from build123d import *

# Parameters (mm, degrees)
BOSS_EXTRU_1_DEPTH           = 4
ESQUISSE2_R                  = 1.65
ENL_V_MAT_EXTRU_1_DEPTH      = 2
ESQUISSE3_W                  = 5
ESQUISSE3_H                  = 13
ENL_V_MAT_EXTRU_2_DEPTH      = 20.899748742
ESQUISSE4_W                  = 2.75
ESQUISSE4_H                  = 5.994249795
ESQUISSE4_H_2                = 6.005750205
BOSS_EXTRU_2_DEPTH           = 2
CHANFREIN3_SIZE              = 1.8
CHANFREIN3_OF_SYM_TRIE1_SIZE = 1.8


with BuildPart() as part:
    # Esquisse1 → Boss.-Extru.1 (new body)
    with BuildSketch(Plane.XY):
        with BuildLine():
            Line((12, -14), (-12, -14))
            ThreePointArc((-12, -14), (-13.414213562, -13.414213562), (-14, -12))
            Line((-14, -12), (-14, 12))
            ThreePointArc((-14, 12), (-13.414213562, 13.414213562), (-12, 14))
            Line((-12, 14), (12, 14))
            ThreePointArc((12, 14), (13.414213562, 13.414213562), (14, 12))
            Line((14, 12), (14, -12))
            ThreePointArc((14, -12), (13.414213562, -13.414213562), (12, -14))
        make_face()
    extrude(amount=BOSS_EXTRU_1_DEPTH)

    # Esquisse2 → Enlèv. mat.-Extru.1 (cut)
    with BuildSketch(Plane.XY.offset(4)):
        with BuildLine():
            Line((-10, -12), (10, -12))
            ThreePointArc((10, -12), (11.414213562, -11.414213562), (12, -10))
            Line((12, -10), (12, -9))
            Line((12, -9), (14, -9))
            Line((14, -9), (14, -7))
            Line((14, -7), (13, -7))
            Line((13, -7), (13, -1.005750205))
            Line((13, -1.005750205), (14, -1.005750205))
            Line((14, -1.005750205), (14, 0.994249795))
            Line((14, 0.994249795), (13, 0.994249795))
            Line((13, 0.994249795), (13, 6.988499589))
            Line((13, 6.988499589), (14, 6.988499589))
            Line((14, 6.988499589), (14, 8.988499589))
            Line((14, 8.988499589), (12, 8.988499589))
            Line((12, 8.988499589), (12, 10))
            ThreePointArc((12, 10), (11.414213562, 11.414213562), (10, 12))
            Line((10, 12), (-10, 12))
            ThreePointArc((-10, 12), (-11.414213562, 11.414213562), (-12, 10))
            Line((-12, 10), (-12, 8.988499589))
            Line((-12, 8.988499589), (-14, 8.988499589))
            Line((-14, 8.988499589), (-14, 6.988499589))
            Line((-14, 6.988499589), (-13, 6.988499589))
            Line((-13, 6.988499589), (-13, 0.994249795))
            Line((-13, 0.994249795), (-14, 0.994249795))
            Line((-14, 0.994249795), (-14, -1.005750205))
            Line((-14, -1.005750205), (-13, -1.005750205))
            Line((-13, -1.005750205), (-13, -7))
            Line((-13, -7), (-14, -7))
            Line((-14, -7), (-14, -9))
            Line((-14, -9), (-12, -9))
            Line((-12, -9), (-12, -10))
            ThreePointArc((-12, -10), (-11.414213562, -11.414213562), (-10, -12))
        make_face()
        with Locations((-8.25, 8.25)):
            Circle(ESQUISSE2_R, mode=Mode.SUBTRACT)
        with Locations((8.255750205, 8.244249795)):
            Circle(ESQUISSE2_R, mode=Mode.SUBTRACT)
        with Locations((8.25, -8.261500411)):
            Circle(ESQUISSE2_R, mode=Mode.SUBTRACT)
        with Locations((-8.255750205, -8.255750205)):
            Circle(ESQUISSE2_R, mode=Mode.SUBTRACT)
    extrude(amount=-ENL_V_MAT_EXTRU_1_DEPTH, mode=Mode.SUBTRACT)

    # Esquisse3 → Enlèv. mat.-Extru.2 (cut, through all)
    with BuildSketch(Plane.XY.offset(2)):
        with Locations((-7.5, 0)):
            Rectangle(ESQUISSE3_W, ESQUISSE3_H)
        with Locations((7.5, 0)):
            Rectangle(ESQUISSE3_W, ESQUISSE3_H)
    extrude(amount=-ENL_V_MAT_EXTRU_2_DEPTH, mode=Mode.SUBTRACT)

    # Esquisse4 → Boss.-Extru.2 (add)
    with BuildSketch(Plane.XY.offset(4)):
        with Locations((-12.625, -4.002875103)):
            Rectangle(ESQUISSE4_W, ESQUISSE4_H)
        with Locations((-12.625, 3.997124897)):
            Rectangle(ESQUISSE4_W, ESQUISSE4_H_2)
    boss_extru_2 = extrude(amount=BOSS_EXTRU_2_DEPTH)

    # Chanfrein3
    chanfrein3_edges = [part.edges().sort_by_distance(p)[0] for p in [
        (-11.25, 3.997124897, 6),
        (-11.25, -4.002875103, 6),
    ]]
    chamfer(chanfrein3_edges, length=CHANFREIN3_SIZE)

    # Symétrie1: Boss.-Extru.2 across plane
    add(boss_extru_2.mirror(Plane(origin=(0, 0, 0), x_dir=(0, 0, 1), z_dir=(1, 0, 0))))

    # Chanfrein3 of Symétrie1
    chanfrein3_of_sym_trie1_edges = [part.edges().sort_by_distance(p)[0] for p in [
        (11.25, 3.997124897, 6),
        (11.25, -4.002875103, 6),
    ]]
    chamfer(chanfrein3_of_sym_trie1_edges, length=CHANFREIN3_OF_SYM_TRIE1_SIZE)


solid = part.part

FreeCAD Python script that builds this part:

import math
import FreeCAD as App
import Part
import Sketcher
from FreeCAD import Vector


def edges_at(feature, points):
    """Names of the edges that pass closest to the given points."""
    edges = feature.Shape.Edges
    near = lambda p: min(range(len(edges)), key=lambda i: edges[i].distToShape(Part.Vertex(*p))[0])
    return sorted({f"Edge{near(p) + 1}" for p in points})

doc = App.newDocument("Part")
body = doc.addObject("PartDesign::Body", "Body")

# Sketch on XY plane
sketch1 = body.newObject("Sketcher::SketchObject", "Sketch")
sketch1.AttachmentSupport = (doc.getObject("XY_Plane"), [""])
sketch1.MapMode = "FlatFace"
sketch1.addGeometry([
    Part.LineSegment(Vector(-12, -14, 0), Vector(12, -14, 0)),  # 0
    Part.ArcOfCircle(Part.Circle(Vector(12, -12, 0), Vector(0, 0, 1), 2), math.radians(-90), math.radians(0)),  # 1
    Part.LineSegment(Vector(14, -12, 0), Vector(14, 12, 0)),  # 2
    Part.ArcOfCircle(Part.Circle(Vector(12, 12, 0), Vector(0, 0, 1), 2), math.radians(0), math.radians(90)),  # 3
    Part.LineSegment(Vector(12, 14, 0), Vector(-12, 14, 0)),  # 4
    Part.ArcOfCircle(Part.Circle(Vector(-12, 12, 0), Vector(0, 0, 1), 2), math.radians(90), math.radians(180)),  # 5
    Part.LineSegment(Vector(-14, 12, 0), Vector(-14, -12, 0)),  # 6
    Part.ArcOfCircle(Part.Circle(Vector(-12, -12, 0), Vector(0, 0, 1), 2), math.radians(-180), math.radians(-90)),  # 7
], False)
sketch1.addConstraint([
    Sketcher.Constraint("Tangent", 0, 2, 1, 1),
    Sketcher.Constraint("Tangent", 1, 2, 2, 1),
    Sketcher.Constraint("Tangent", 2, 2, 3, 1),
    Sketcher.Constraint("Tangent", 3, 2, 4, 1),
    Sketcher.Constraint("Tangent", 4, 2, 5, 1),
    Sketcher.Constraint("Tangent", 5, 2, 6, 1),
    Sketcher.Constraint("Tangent", 6, 2, 7, 1),
    Sketcher.Constraint("Tangent", 7, 2, 0, 1),
    Sketcher.Constraint("Horizontal", 0),
    Sketcher.Constraint("Vertical", 2),
    Sketcher.Constraint("Horizontal", 4),
    Sketcher.Constraint("Vertical", 6),
    Sketcher.Constraint("Equal", 1, 3),
    Sketcher.Constraint("Equal", 3, 5),
    Sketcher.Constraint("Equal", 5, 7),
    Sketcher.Constraint("Symmetric", 1, 3, 5, 3, -1, 1),
    Sketcher.Constraint("Equal", 4, 2),
    Sketcher.Constraint("Radius", 1, 2.0),
    Sketcher.Constraint("DistanceX", 0, 1, 0, 2, 24.0),
])
pad1 = body.newObject("PartDesign::Pad", "Pad")
pad1.Profile = sketch1
pad1.Length = 4

# Sketch on XY plane
sketch2 = body.newObject("Sketcher::SketchObject", "Sketch001")
sketch2.AttachmentSupport = (doc.getObject("XY_Plane"), [""])
sketch2.MapMode = "FlatFace"
sketch2.AttachmentOffset = App.Placement(Vector(0, 0, 4), App.Rotation())
sketch2.addGeometry([
    Part.LineSegment(Vector(-10, -12, 0), Vector(10, -12, 0)),  # 0
    Part.ArcOfCircle(Part.Circle(Vector(10, -10, 0), Vector(0, 0, 1), 2), math.radians(-90), math.radians(0)),  # 1
    Part.LineSegment(Vector(12, -10, 0), Vector(12, -9, 0)),  # 2
    Part.LineSegment(Vector(12, -9, 0), Vector(14, -9, 0)),  # 3
    Part.LineSegment(Vector(14, -9, 0), Vector(14, -7, 0)),  # 4
    Part.LineSegment(Vector(14, -7, 0), Vector(13, -7, 0)),  # 5
    Part.LineSegment(Vector(13, -7, 0), Vector(13, -1, 0)),  # 6
    Part.LineSegment(Vector(13, -1, 0), Vector(14, -1, 0)),  # 7
    Part.LineSegment(Vector(14, -1, 0), Vector(14, 1, 0)),  # 8
    Part.LineSegment(Vector(14, 1, 0), Vector(13, 1, 0)),  # 9
    Part.LineSegment(Vector(13, 1, 0), Vector(13, 7, 0)),  # 10
    Part.LineSegment(Vector(13, 7, 0), Vector(14, 7, 0)),  # 11
    Part.LineSegment(Vector(14, 7, 0), Vector(14, 9, 0)),  # 12
    Part.LineSegment(Vector(14, 9, 0), Vector(12, 9, 0)),  # 13
    Part.LineSegment(Vector(12, 9, 0), Vector(12, 10, 0)),  # 14
    Part.ArcOfCircle(Part.Circle(Vector(10, 10, 0), Vector(0, 0, 1), 2), math.radians(0), math.radians(90)),  # 15
    Part.LineSegment(Vector(10, 12, 0), Vector(-10, 12, 0)),  # 16
    Part.ArcOfCircle(Part.Circle(Vector(-10, 10, 0), Vector(0, 0, 1), 2), math.radians(90), math.radians(180)),  # 17
    Part.LineSegment(Vector(-12, 10, 0), Vector(-12, 9, 0)),  # 18
    Part.LineSegment(Vector(-12, 9, 0), Vector(-14, 9, 0)),  # 19
    Part.LineSegment(Vector(-14, 9, 0), Vector(-14, 7, 0)),  # 20
    Part.LineSegment(Vector(-14, 7, 0), Vector(-13, 7, 0)),  # 21
    Part.LineSegment(Vector(-13, 7, 0), Vector(-13, 1, 0)),  # 22
    Part.LineSegment(Vector(-13, 1, 0), Vector(-14, 1, 0)),  # 23
    Part.LineSegment(Vector(-14, 1, 0), Vector(-14, -1, 0)),  # 24
    Part.LineSegment(Vector(-14, -1, 0), Vector(-13, -1, 0)),  # 25
    Part.LineSegment(Vector(-13, -1, 0), Vector(-13, -7, 0)),  # 26
    Part.LineSegment(Vector(-13, -7, 0), Vector(-14, -7, 0)),  # 27
    Part.LineSegment(Vector(-14, -7, 0), Vector(-14, -9, 0)),  # 28
    Part.LineSegment(Vector(-14, -9, 0), Vector(-12, -9, 0)),  # 29
    Part.LineSegment(Vector(-12, -9, 0), Vector(-12, -10, 0)),  # 30
    Part.ArcOfCircle(Part.Circle(Vector(-10, -10, 0), Vector(0, 0, 1), 2), math.radians(-180), math.radians(-90)),  # 31
    Part.Circle(Vector(-8.3, -8.3, 0), Vector(0, 0, 1), 1.6),  # 32
    Part.Circle(Vector(8.2, -8.3, 0), Vector(0, 0, 1), 1.6),  # 33
    Part.Circle(Vector(-8.2, 8.2, 0), Vector(0, 0, 1), 1.6),  # 34
    Part.Circle(Vector(8.3, 8.2, 0), Vector(0, 0, 1), 1.6),  # 35
], False)
sketch2.addConstraint([
    Sketcher.Constraint("Tangent", 0, 2, 1, 1),
    Sketcher.Constraint("Tangent", 1, 2, 2, 1),
    Sketcher.Constraint("Coincident", 2, 2, 3, 1),
    Sketcher.Constraint("Coincident", 3, 2, 4, 1),
    Sketcher.Constraint("Coincident", 4, 2, 5, 1),
    Sketcher.Constraint("Coincident", 5, 2, 6, 1),
    Sketcher.Constraint("Coincident", 6, 2, 7, 1),
    Sketcher.Constraint("Coincident", 7, 2, 8, 1),
    Sketcher.Constraint("Coincident", 8, 2, 9, 1),
    Sketcher.Constraint("Coincident", 9, 2, 10, 1),
    Sketcher.Constraint("Coincident", 10, 2, 11, 1),
    Sketcher.Constraint("Coincident", 11, 2, 12, 1),
    Sketcher.Constraint("Coincident", 12, 2, 13, 1),
    Sketcher.Constraint("Coincident", 13, 2, 14, 1),
    Sketcher.Constraint("Tangent", 14, 2, 15, 1),
    Sketcher.Constraint("Tangent", 15, 2, 16, 1),
    Sketcher.Constraint("Tangent", 16, 2, 17, 1),
    Sketcher.Constraint("Tangent", 17, 2, 18, 1),
    Sketcher.Constraint("Coincident", 18, 2, 19, 1),
    Sketcher.Constraint("Coincident", 19, 2, 20, 1),
    Sketcher.Constraint("Coincident", 20, 2, 21, 1),
    Sketcher.Constraint("Coincident", 21, 2, 22, 1),
    Sketcher.Constraint("Coincident", 22, 2, 23, 1),
    Sketcher.Constraint("Coincident", 23, 2, 24, 1),
    Sketcher.Constraint("Coincident", 24, 2, 25, 1),
    Sketcher.Constraint("Coincident", 25, 2, 26, 1),
    Sketcher.Constraint("Coincident", 26, 2, 27, 1),
    Sketcher.Constraint("Coincident", 27, 2, 28, 1),
    Sketcher.Constraint("Coincident", 28, 2, 29, 1),
    Sketcher.Constraint("Coincident", 29, 2, 30, 1),
    Sketcher.Constraint("Tangent", 30, 2, 31, 1),
    Sketcher.Constraint("Tangent", 31, 2, 0, 1),
    Sketcher.Constraint("Horizontal", 0),
    Sketcher.Constraint("Vertical", 2),
    Sketcher.Constraint("Horizontal", 3),
    Sketcher.Constraint("Vertical", 4),
    Sketcher.Constraint("Horizontal", 5),
    Sketcher.Constraint("Vertical", 6),
    Sketcher.Constraint("Horizontal", 7),
    Sketcher.Constraint("Vertical", 8),
    Sketcher.Constraint("Horizontal", 9),
    Sketcher.Constraint("Vertical", 10),
    Sketcher.Constraint("Horizontal", 11),
    Sketcher.Constraint("Vertical", 12),
    Sketcher.Constraint("Horizontal", 13),
    Sketcher.Constraint("Vertical", 14),
    Sketcher.Constraint("Horizontal", 16),
    Sketcher.Constraint("Vertical", 18),
    Sketcher.Constraint("Horizontal", 19),
    Sketcher.Constraint("Vertical", 20),
    Sketcher.Constraint("Horizontal", 21),
    Sketcher.Constraint("Vertical", 22),
    Sketcher.Constraint("Horizontal", 23),
    Sketcher.Constraint("Vertical", 24),
    Sketcher.Constraint("Horizontal", 25),
    Sketcher.Constraint("Vertical", 26),
    Sketcher.Constraint("Horizontal", 27),
    Sketcher.Constraint("Vertical", 28),
    Sketcher.Constraint("Horizontal", 29),
    Sketcher.Constraint("Vertical", 30),
    Sketcher.Constraint("Equal", 1, 15),
    Sketcher.Constraint("Equal", 15, 17),
    Sketcher.Constraint("Equal", 17, 31),
    Sketcher.Constraint("Equal", 32, 33),
    Sketcher.Constraint("Equal", 33, 34),
    Sketcher.Constraint("Equal", 34, 35),
    Sketcher.Constraint("Symmetric", 1, 3, 17, 3, -1, 1),
    Sketcher.Constraint("Symmetric", 13, 2, 18, 2, -2),
    Sketcher.Constraint("Symmetric", 11, 2, 20, 2, -2),
    Sketcher.Constraint("Symmetric", 9, 2, 22, 2, -2),
    Sketcher.Constraint("Symmetric", 7, 2, 24, 2, -2),
    Sketcher.Constraint("Symmetric", 5, 2, 26, 2, -2),
    Sketcher.Constraint("Symmetric", 3, 2, 28, 2, -2),
    Sketcher.Constraint("Vertical", 17, 3, 31, 3),
    Sketcher.Constraint("Vertical", 4, 2, 7, 2),
    Sketcher.Constraint("Vertical", 6, 2, 9, 2),
    Sketcher.Constraint("Vertical", 8, 2, 11, 2),
    Sketcher.Constraint("Equal", 27, 2),
    Sketcher.Constraint("Equal", 29, 4),
    Sketcher.Constraint("Equal", 4, 8),
    Sketcher.Constraint("Equal", 6, 10),
    Sketcher.Constraint("Equal", 8, 12),
    Sketcher.Constraint("Radius", 1, 2.0),
    Sketcher.Constraint("Diameter", 32, 3.3),
    Sketcher.Constraint("DistanceX", 0, 1, 0, 2, 20.0),
    Sketcher.Constraint("DistanceX", 3, 1, 3, 2, 2.0),
    Sketcher.Constraint("DistanceX", 5, 2, 5, 1, 1.0),
    Sketcher.Constraint("DistanceY", 1, 3, -1, 1, 10.0),
    Sketcher.Constraint("DistanceX", 34, 3, 33, 3, 16.5),
    Sketcher.Constraint("DistanceX", -1, 1, 33, 3, 8.25),
    Sketcher.Constraint("DistanceY", -1, 1, 34, 3, 8.25),
    Sketcher.Constraint("DistanceY", 8, 2, 35, 3, 7.25),
    Sketcher.Constraint("DistanceY", 32, 3, 24, 2, 7.25),
    Sketcher.Constraint("DistanceY", 14, 1, 14, 2, 1.0115),
    Sketcher.Constraint("DistanceY", 33, 3, -1, 1, 8.2615),
    Sketcher.Constraint("DistanceX", 32, 3, -1, 1, 8.25575),
    Sketcher.Constraint("DistanceX", -1, 1, 35, 3, 8.25575),
])
pocket1 = body.newObject("PartDesign::Pocket", "Pocket")
pocket1.Profile = sketch2
pocket1.Length = 2

# Sketch on XY plane
sketch3 = body.newObject("Sketcher::SketchObject", "Sketch002")
sketch3.AttachmentSupport = (doc.getObject("XY_Plane"), [""])
sketch3.MapMode = "FlatFace"
sketch3.AttachmentOffset = App.Placement(Vector(0, 0, 2), App.Rotation())
sketch3.addGeometry([
    Part.LineSegment(Vector(-10, 6, 0), Vector(-10, -6, 0)),  # 0
    Part.LineSegment(Vector(-10, -6, 0), Vector(-5, -6, 0)),  # 1
    Part.LineSegment(Vector(-5, -6, 0), Vector(-5, 6, 0)),  # 2
    Part.LineSegment(Vector(-5, 6, 0), Vector(-10, 6, 0)),  # 3
    Part.LineSegment(Vector(5, 6, 0), Vector(5, -6, 0)),  # 4
    Part.LineSegment(Vector(5, -6, 0), Vector(10, -6, 0)),  # 5
    Part.LineSegment(Vector(10, -6, 0), Vector(10, 6, 0)),  # 6
    Part.LineSegment(Vector(10, 6, 0), Vector(5, 6, 0)),  # 7
], False)
sketch3.addConstraint([
    Sketcher.Constraint("Coincident", 0, 2, 1, 1),
    Sketcher.Constraint("Coincident", 1, 2, 2, 1),
    Sketcher.Constraint("Coincident", 2, 2, 3, 1),
    Sketcher.Constraint("Coincident", 3, 2, 0, 1),
    Sketcher.Constraint("Coincident", 4, 2, 5, 1),
    Sketcher.Constraint("Coincident", 5, 2, 6, 1),
    Sketcher.Constraint("Coincident", 6, 2, 7, 1),
    Sketcher.Constraint("Coincident", 7, 2, 4, 1),
    Sketcher.Constraint("Vertical", 0),
    Sketcher.Constraint("Horizontal", 1),
    Sketcher.Constraint("Vertical", 2),
    Sketcher.Constraint("Horizontal", 3),
    Sketcher.Constraint("Vertical", 4),
    Sketcher.Constraint("Horizontal", 5),
    Sketcher.Constraint("Vertical", 6),
    Sketcher.Constraint("Horizontal", 7),
    Sketcher.Constraint("Symmetric", 2, 2, 4, 2, -1, 1),
    Sketcher.Constraint("Symmetric", 0, 2, 6, 2, -1, 1),
    Sketcher.Constraint("Horizontal", 1, 2, 4, 2),
    Sketcher.Constraint("DistanceX", 1, 1, 1, 2, 5.0),
    Sketcher.Constraint("DistanceY", 0, 2, 0, 1, 13.0),
    Sketcher.Constraint("DistanceX", 0, 2, -1, 1, 10.0),
])
pocket2 = body.newObject("PartDesign::Pocket", "Pocket001")
pocket2.Profile = sketch3
pocket2.Type = "ThroughAll"

# Sketch on XY plane
sketch4 = body.newObject("Sketcher::SketchObject", "Sketch003")
sketch4.AttachmentSupport = (doc.getObject("XY_Plane"), [""])
sketch4.MapMode = "FlatFace"
sketch4.AttachmentOffset = App.Placement(Vector(0, 0, 4), App.Rotation())
sketch4.addGeometry([
    Part.LineSegment(Vector(-14, -1, 0), Vector(-14, -7, 0)),  # 0
    Part.LineSegment(Vector(-14, -7, 0), Vector(-11.2, -7, 0)),  # 1
    Part.LineSegment(Vector(-11.2, -7, 0), Vector(-11.2, -1, 0)),  # 2
    Part.LineSegment(Vector(-11.2, -1, 0), Vector(-14, -1, 0)),  # 3
    Part.LineSegment(Vector(-14, 7, 0), Vector(-14, 1, 0)),  # 4
    Part.LineSegment(Vector(-14, 1, 0), Vector(-11.2, 1, 0)),  # 5
    Part.LineSegment(Vector(-11.2, 1, 0), Vector(-11.2, 7, 0)),  # 6
    Part.LineSegment(Vector(-11.2, 7, 0), Vector(-14, 7, 0)),  # 7
], False)
sketch4.addConstraint([
    Sketcher.Constraint("Coincident", 0, 2, 1, 1),
    Sketcher.Constraint("Coincident", 1, 2, 2, 1),
    Sketcher.Constraint("Coincident", 2, 2, 3, 1),
    Sketcher.Constraint("Coincident", 3, 2, 0, 1),
    Sketcher.Constraint("Coincident", 4, 2, 5, 1),
    Sketcher.Constraint("Coincident", 5, 2, 6, 1),
    Sketcher.Constraint("Coincident", 6, 2, 7, 1),
    Sketcher.Constraint("Coincident", 7, 2, 4, 1),
    Sketcher.Constraint("Vertical", 0),
    Sketcher.Constraint("Horizontal", 1),
    Sketcher.Constraint("Vertical", 2),
    Sketcher.Constraint("Horizontal", 3),
    Sketcher.Constraint("Vertical", 4),
    Sketcher.Constraint("Horizontal", 5),
    Sketcher.Constraint("Vertical", 6),
    Sketcher.Constraint("Horizontal", 7),
    Sketcher.Constraint("Symmetric", 1, 2, 6, 2, -1),
    Sketcher.Constraint("Vertical", 3, 2, 4, 2),
    Sketcher.Constraint("DistanceX", 0, 2, -1, 1, 14.0),
    Sketcher.Constraint("DistanceY", 0, 2, -1, 1, 7.0),
    Sketcher.Constraint("DistanceY", 3, 2, 4, 2, 2.0),
    Sketcher.Constraint("DistanceX", 1, 1, 1, 2, 2.75),
    Sketcher.Constraint("DistanceY", 0, 2, 0, 1, 5.99425),
])
pad2 = body.newObject("PartDesign::Pad", "Pad001")
pad2.Profile = sketch4
pad2.Length = 2
doc.recompute()

chamfer = body.newObject("PartDesign::Chamfer", "Chamfer")
chamfer.Base = (pad2, edges_at(pad2, [(-11.25, 3.997, 6), (-11.25, -4.003, 6)]))
chamfer.Size = 1.8
doc.recompute()

mirrored = body.newObject("PartDesign::Mirrored", "Mirrored")
mirrored.Originals = [pad2]
mirrored.MirrorPlane = (doc.getObject("YZ_Plane"), [""])
body.Tip = mirrored
doc.recompute()

chamfer2 = body.newObject("PartDesign::Chamfer", "Chamfer001")
chamfer2.Base = (mirrored, edges_at(mirrored, [(11.25, 3.997, 6), (11.25, -4.003, 6)]))
chamfer2.Size = 1.8

doc.recompute()
